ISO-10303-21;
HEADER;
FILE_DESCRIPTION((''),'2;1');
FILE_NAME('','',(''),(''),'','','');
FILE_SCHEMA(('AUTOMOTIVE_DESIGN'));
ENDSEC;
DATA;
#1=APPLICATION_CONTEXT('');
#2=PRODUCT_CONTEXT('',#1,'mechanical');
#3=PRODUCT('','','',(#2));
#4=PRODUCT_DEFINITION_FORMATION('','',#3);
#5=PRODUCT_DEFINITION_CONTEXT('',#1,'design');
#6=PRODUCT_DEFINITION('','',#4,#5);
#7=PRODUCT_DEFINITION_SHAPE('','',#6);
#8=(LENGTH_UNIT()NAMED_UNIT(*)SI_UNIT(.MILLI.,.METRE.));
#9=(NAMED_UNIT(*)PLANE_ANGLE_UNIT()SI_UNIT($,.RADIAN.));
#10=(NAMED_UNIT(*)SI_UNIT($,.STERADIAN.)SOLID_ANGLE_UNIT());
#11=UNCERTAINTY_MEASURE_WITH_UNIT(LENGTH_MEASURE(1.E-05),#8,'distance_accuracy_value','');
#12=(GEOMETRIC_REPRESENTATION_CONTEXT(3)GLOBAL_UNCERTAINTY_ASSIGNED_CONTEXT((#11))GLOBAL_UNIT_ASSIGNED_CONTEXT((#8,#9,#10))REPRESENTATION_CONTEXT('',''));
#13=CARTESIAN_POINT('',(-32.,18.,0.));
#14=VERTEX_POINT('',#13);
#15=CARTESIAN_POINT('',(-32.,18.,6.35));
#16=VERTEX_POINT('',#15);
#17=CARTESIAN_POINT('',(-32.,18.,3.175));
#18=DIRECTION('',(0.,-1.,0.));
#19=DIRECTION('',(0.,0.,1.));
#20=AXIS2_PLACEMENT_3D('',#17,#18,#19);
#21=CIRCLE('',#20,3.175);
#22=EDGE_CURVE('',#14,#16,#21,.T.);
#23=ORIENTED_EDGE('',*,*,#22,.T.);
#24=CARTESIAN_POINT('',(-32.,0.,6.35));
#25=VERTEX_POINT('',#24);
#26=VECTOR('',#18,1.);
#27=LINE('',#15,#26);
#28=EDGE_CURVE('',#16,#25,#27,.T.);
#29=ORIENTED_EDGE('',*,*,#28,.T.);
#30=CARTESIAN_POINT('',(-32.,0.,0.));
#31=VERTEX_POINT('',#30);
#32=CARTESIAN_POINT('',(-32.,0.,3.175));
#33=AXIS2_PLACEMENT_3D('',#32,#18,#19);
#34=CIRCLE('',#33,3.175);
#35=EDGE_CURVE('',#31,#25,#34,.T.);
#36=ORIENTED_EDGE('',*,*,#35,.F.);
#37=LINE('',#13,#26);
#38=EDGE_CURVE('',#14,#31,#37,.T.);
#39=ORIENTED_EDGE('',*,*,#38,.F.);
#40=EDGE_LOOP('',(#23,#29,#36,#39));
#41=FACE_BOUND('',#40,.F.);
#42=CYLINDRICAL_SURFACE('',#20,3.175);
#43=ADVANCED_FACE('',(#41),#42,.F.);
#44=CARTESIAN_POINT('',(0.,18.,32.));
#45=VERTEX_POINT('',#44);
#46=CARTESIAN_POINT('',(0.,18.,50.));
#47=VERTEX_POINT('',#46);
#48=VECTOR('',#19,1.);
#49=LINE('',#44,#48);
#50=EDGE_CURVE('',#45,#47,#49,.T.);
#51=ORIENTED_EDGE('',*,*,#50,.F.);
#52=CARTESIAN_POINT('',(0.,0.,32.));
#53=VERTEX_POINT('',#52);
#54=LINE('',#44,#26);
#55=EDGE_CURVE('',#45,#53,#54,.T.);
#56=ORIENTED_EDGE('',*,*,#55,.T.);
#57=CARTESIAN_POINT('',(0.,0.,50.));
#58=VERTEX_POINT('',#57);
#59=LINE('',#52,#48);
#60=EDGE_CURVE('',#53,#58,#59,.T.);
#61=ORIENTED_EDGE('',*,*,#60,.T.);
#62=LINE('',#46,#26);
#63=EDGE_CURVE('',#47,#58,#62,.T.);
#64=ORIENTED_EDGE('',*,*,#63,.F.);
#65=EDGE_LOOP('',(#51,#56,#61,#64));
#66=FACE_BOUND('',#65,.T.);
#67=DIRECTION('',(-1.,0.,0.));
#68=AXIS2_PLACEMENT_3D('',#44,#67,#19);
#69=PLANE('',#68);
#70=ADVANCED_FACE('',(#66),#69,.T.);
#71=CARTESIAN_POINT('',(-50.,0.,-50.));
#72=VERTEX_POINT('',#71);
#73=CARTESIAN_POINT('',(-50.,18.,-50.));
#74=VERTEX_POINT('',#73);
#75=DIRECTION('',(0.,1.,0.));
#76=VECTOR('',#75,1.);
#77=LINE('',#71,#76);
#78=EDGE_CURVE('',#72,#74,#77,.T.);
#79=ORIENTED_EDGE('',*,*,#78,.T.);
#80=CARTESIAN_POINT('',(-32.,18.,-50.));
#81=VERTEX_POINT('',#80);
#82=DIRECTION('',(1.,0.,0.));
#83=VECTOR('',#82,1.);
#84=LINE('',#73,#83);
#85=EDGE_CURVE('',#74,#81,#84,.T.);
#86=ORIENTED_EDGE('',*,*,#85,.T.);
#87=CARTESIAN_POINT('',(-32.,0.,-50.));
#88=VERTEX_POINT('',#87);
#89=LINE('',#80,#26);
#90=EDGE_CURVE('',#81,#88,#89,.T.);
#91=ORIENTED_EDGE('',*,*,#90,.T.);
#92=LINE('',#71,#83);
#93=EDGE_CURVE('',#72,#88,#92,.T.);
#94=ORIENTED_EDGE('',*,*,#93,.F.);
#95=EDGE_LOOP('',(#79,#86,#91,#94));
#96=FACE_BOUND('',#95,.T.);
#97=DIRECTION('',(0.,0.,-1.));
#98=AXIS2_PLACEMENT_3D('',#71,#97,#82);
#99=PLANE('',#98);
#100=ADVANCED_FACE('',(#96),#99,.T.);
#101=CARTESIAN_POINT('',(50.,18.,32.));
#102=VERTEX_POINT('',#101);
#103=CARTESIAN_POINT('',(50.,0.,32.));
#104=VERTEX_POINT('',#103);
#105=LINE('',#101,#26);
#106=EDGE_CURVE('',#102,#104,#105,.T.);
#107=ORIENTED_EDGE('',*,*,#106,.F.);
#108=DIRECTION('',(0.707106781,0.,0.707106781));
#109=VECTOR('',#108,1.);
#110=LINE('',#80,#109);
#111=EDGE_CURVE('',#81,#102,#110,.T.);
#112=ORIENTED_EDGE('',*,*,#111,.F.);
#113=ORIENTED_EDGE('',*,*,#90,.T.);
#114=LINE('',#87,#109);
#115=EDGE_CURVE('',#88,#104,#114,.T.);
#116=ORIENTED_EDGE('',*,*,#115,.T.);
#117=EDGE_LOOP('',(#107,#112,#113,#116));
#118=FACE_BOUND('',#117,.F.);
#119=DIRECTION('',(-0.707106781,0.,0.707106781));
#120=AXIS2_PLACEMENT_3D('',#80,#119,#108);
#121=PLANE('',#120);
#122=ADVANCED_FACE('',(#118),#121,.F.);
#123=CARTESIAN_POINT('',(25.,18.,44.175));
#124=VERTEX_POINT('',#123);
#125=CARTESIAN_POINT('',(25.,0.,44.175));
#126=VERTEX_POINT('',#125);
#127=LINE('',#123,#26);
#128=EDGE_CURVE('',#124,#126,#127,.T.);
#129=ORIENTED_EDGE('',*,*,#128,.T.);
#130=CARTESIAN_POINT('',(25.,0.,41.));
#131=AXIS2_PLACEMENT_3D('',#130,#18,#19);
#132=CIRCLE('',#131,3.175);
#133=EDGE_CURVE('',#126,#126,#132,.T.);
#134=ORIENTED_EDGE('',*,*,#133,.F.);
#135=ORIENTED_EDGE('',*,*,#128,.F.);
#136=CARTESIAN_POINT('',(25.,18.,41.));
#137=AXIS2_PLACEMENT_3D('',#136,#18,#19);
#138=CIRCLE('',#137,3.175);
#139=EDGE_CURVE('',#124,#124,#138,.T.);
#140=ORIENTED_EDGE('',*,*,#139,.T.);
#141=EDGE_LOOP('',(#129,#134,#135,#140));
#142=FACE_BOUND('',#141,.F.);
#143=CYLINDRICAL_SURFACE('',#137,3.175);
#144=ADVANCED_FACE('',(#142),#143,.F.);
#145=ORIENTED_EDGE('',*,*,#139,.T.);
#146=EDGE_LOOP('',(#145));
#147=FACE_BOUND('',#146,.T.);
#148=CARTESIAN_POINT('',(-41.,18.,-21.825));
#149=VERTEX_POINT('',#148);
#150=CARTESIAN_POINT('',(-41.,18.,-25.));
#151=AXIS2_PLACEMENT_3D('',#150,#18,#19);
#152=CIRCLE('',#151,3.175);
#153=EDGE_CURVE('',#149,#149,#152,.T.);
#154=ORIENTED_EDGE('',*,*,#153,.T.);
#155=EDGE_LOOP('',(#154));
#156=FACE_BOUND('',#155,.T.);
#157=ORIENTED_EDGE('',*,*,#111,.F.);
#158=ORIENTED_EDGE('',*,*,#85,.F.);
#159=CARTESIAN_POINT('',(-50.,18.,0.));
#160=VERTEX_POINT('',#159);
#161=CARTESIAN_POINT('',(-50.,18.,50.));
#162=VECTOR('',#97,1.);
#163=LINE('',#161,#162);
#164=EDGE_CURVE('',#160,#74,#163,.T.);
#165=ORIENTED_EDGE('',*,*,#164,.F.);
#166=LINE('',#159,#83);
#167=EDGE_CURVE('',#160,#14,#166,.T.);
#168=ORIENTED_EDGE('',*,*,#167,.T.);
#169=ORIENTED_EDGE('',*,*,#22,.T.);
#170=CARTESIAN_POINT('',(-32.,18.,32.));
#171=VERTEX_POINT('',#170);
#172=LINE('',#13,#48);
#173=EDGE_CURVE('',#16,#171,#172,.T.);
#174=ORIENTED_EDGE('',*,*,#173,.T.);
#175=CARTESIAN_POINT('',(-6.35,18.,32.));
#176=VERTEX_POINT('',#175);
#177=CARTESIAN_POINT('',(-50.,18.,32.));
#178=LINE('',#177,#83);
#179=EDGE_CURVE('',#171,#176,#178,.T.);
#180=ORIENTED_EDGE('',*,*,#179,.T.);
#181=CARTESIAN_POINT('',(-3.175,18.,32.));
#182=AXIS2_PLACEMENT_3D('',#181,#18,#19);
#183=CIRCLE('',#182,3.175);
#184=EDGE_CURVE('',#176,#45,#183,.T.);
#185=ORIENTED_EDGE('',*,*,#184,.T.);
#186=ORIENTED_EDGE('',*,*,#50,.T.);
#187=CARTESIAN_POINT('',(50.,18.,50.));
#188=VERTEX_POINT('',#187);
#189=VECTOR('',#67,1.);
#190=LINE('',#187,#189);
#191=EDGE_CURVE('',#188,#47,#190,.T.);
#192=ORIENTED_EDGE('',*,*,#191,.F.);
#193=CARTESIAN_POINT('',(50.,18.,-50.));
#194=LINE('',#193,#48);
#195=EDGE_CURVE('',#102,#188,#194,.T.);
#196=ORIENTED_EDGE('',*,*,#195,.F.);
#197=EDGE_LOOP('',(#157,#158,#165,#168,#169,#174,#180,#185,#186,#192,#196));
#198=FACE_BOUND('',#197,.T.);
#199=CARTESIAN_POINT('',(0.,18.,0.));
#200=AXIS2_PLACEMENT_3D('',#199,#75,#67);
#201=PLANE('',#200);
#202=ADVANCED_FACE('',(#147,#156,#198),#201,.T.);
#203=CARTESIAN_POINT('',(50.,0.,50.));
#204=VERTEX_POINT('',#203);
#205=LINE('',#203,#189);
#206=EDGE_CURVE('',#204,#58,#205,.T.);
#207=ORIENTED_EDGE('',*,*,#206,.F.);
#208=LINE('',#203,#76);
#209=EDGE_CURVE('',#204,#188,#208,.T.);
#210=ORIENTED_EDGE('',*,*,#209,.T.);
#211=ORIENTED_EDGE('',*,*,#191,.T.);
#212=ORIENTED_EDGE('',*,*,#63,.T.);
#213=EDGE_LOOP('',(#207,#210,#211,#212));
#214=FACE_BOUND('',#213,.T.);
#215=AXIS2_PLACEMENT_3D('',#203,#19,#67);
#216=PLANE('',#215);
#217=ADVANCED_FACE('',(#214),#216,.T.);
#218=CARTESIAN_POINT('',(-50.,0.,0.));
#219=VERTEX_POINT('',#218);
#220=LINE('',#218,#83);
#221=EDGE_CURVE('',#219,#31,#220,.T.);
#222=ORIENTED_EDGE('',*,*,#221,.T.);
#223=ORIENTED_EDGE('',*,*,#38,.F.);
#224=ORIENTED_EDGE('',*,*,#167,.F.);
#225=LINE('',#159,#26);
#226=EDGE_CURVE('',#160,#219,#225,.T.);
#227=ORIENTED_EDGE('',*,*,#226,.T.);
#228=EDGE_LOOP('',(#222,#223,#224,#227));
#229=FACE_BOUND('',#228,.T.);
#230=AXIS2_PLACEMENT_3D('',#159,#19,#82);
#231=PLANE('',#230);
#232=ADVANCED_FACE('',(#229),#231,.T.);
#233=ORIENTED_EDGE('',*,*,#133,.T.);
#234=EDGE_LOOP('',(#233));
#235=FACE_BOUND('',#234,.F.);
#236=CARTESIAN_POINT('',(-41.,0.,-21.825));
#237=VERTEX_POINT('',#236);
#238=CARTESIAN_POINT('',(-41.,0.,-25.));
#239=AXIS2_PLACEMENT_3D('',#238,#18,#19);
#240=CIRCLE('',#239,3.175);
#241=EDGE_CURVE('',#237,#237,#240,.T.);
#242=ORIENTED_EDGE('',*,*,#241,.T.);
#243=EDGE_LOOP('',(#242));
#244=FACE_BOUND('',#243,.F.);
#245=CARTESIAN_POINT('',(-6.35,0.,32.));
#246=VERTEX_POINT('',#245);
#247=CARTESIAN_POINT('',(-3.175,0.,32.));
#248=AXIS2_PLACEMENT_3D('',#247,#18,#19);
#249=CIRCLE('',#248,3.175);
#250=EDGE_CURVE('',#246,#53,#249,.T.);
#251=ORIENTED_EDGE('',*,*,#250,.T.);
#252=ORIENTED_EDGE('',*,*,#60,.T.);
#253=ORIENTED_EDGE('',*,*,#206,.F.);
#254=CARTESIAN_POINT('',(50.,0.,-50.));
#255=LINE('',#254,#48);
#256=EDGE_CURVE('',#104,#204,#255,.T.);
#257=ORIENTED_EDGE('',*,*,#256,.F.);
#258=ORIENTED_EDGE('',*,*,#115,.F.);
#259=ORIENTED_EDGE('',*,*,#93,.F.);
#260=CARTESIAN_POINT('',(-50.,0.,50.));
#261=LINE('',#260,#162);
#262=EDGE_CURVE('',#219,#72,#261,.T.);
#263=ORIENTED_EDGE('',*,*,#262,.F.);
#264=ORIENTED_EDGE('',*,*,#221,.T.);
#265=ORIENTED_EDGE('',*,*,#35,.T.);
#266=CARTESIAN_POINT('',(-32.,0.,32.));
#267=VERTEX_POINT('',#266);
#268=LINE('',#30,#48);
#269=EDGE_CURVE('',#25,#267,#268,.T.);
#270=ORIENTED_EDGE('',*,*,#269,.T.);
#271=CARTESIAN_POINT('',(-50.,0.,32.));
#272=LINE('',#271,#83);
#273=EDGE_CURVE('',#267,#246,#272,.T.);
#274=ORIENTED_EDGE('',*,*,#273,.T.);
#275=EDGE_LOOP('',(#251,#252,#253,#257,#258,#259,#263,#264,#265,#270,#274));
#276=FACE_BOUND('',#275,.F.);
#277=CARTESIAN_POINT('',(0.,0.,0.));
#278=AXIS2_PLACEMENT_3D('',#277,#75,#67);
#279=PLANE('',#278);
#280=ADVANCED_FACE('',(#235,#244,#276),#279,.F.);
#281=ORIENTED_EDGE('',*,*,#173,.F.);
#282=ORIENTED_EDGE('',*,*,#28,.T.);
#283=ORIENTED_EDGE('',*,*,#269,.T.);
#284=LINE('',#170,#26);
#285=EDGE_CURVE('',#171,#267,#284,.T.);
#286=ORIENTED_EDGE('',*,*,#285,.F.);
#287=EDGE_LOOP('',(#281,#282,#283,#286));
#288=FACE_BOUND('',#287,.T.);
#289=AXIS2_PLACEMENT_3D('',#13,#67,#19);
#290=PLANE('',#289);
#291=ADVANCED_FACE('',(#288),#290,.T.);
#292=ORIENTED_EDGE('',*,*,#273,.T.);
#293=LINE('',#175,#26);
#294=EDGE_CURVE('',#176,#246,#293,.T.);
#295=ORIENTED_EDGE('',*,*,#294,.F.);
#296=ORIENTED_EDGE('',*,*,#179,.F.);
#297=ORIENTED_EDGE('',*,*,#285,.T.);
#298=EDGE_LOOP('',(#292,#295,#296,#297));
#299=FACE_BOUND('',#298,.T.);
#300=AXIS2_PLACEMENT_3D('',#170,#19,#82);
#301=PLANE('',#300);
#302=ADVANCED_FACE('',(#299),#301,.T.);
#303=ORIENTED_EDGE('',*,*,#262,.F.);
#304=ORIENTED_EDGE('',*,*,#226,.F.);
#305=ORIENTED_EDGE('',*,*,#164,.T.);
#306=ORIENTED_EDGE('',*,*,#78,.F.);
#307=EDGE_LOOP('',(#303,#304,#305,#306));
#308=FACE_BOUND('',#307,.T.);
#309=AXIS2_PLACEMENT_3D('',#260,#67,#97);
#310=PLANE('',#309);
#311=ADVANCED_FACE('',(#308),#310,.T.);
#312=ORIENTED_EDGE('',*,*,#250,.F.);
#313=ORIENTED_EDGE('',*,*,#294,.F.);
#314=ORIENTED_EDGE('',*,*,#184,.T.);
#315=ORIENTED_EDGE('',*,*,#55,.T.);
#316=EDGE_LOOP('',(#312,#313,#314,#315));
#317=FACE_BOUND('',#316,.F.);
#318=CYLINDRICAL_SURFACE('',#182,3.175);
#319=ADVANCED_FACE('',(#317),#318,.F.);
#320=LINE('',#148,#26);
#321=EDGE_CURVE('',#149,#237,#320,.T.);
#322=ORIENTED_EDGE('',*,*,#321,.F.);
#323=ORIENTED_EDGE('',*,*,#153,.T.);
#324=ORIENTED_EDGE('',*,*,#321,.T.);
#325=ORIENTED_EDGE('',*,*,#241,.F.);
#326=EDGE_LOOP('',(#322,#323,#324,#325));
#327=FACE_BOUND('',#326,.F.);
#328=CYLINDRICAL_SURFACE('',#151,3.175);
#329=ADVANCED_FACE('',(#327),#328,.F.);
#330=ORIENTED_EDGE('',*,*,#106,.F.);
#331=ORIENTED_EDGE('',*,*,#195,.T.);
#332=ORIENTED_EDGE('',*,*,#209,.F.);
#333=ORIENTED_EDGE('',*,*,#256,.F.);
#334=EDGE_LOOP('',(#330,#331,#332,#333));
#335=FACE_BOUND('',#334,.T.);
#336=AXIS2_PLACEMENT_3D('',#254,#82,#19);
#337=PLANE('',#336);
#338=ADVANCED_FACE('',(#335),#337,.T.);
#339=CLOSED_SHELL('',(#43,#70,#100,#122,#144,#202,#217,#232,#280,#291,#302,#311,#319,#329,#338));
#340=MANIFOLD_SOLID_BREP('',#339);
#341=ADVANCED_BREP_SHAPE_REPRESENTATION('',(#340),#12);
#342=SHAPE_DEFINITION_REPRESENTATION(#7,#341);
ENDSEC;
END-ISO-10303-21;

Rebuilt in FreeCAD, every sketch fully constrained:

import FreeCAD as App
import Part
import Sketcher
Q = App.Units.Quantity


def add_polygon(sketch, points):
    """Adds a closed chain of lines whose ends are joined by coincident constraints."""
    first, n = sketch.GeometryCount, len(points)
    for a, b in zip(points, points[1:] + points[:1]):
        sketch.addGeometry(Part.LineSegment(App.Vector(*a, 0), App.Vector(*b, 0)), False)
    for i in range(n):
        sketch.addConstraint(Sketcher.Constraint("Coincident", first + i, 2, first + (i + 1) % n, 1))

doc = App.newDocument("Part")
body = doc.addObject("PartDesign::Body", "Body")

sketch1 = body.newObject("Sketcher::SketchObject", "Sketch")
sketch1.AttachmentSupport = (doc.getObject("XZ_Plane"), [""])
sketch1.MapMode = "FlatFace"
add_polygon(sketch1, [(50, -50), (-50, -50), (-50, 50), (50, 50)])
sketch1.addConstraint(Sketcher.Constraint("Horizontal", 0))
sketch1.addConstraint(Sketcher.Constraint("Vertical", 1))
sketch1.addConstraint(Sketcher.Constraint("Horizontal", 2))
sketch1.addConstraint(Sketcher.Constraint("Vertical", 3))
sketch1.addConstraint(Sketcher.Constraint("Symmetric", 0, 2, 2, 2, -1, 1))
sketch1.addConstraint(Sketcher.Constraint("Equal", 2, 1))
sketch1.addConstraint(Sketcher.Constraint("DistanceX", 0, 2, 0, 1, Q("100 mm")))
pad1 = body.newObject("PartDesign::Pad", "Pad")
pad1.Profile = sketch1
pad1.Length = 18
pad1.Reversed = True

sketch2 = body.newObject("Sketcher::SketchObject", "Sketch001")
sketch2.AttachmentSupport = (doc.getObject("XZ_Plane"), [""])
sketch2.MapMode = "FlatFace"
sketch2.AttachmentOffset = App.Placement(App.Vector(0, 0, -18), App.Rotation())
add_polygon(sketch2, [(50, -50), (-32, -50), (50, 32)])
sketch2.addConstraint(Sketcher.Constraint("Horizontal", 0))
sketch2.addConstraint(Sketcher.Constraint("Vertical", 2))
sketch2.addConstraint(Sketcher.Constraint("Equal", 0, 2))
sketch2.addConstraint(Sketcher.Constraint("DistanceX", 0, 2, 0, 1, Q("82 mm")))
sketch2.addConstraint(Sketcher.Constraint("DistanceX", 0, 2, -1, 1, Q("32 mm")))
sketch2.addConstraint(Sketcher.Constraint("DistanceY", 0, 2, -1, 1, Q("50 mm")))
pocket1 = body.newObject("PartDesign::Pocket", "Pocket")
pocket1.Profile = sketch2
pocket1.Length = 18
pocket1.Reversed = True

sketch3 = body.newObject("Sketcher::SketchObject", "Sketch002")
sketch3.AttachmentSupport = (doc.getObject("XZ_Plane"), [""])
sketch3.MapMode = "FlatFace"
sketch3.AttachmentOffset = App.Placement(App.Vector(0, 0, -18), App.Rotation())
add_polygon(sketch3, [(-32, 0), (-50, 0), (-50, 50), (0, 50), (0, 32), (-32, 32)])
sketch3.addConstraint(Sketcher.Constraint("Horizontal", 0))
sketch3.addConstraint(Sketcher.Constraint("Vertical", 1))
sketch3.addConstraint(Sketcher.Constraint("Horizontal", 2))
sketch3.addConstraint(Sketcher.Constraint("Vertical", 3))
sketch3.addConstraint(Sketcher.Constraint("Horizontal", 4))
sketch3.addConstraint(Sketcher.Constraint("Vertical", 5))
sketch3.addConstraint(Sketcher.Constraint("PointOnObject", 0, 2, -1))
sketch3.addConstraint(Sketcher.Constraint("PointOnObject", 2, 2, -2))
sketch3.addConstraint(Sketcher.Constraint("Equal", 2, 1))
sketch3.addConstraint(Sketcher.Constraint("Equal", 0, 3))
sketch3.addConstraint(Sketcher.Constraint("DistanceX", 0, 2, 0, 1, Q("18 mm")))
sketch3.addConstraint(Sketcher.Constraint("DistanceX", 2, 1, 2, 2, Q("50 mm")))
pocket2 = body.newObject("PartDesign::Pocket", "Pocket001")
pocket2.Profile = sketch3
pocket2.Length = 18
pocket2.Reversed = True

sketch4 = body.newObject("Sketcher::SketchObject", "Sketch003")
sketch4.AttachmentSupport = (doc.getObject("XZ_Plane"), [""])
sketch4.MapMode = "FlatFace"
sketch4.AttachmentOffset = App.Placement(App.Vector(0, 0, -18), App.Rotation())
sketch4.addGeometry(Part.Circle(App.Vector(-32, 3.175, 0), App.Vector(0, 0, 1), 3.175), False)
sketch4.addGeometry(Part.Circle(App.Vector(-3.175, 32, 0), App.Vector(0, 0, 1), 3.175), False)
sketch4.addConstraint(Sketcher.Constraint("Equal", 0, 1))
sketch4.addConstraint(Sketcher.Constraint("Diameter", 0, Q("6.35 mm")))
sketch4.addConstraint(Sketcher.Constraint("DistanceX", 0, 3, -1, 1, Q("32 mm")))
sketch4.addConstraint(Sketcher.Constraint("DistanceY", -1, 1, 1, 3, Q("32 mm")))
sketch4.addConstraint(Sketcher.Constraint("DistanceY", -1, 1, 0, 3, Q("3.175 mm")))
sketch4.addConstraint(Sketcher.Constraint("DistanceX", 1, 3, -1, 1, Q("3.175 mm")))
doc.recompute()
hole = body.newObject("PartDesign::Hole", "Hole")
hole.Profile = sketch4
hole.ThreadType = "None"
hole.Diameter = 6.35
hole.DepthType = "ThroughAll"
hole.Reversed = True

sketch5 = body.newObject("Sketcher::SketchObject", "Sketch004")
sketch5.AttachmentSupport = (doc.getObject("XZ_Plane"), [""])
sketch5.MapMode = "FlatFace"
sketch5.AttachmentOffset = App.Placement(App.Vector(0, 0, -18), App.Rotation())
sketch5.addGeometry(Part.Circle(App.Vector(-41, -25, 0), App.Vector(0, 0, 1), 3.175), False)
sketch5.addGeometry(Part.Circle(App.Vector(25, 41, 0), App.Vector(0, 0, 1), 3.175), False)
sketch5.addConstraint(Sketcher.Constraint("Equal", 0, 1))
sketch5.addConstraint(Sketcher.Constraint("Diameter", 0, Q("6.35 mm")))
sketch5.addConstraint(Sketcher.Constraint("DistanceX", 0, 3, -1, 1, Q("41 mm")))
sketch5.addConstraint(Sketcher.Constraint("DistanceY", 0, 3, -1, 1, Q("25 mm")))
sketch5.addConstraint(Sketcher.Constraint("DistanceX", -1, 1, 1, 3, Q("25 mm")))
sketch5.addConstraint(Sketcher.Constraint("DistanceY", -1, 1, 1, 3, Q("41 mm")))
doc.recompute()
hole2 = body.newObject("PartDesign::Hole", "Hole001")
hole2.Profile = sketch5
hole2.ThreadType = "None"
hole2.Diameter = 6.35
hole2.DepthType = "ThroughAll"
hole2.Reversed = True

doc.recompute()
